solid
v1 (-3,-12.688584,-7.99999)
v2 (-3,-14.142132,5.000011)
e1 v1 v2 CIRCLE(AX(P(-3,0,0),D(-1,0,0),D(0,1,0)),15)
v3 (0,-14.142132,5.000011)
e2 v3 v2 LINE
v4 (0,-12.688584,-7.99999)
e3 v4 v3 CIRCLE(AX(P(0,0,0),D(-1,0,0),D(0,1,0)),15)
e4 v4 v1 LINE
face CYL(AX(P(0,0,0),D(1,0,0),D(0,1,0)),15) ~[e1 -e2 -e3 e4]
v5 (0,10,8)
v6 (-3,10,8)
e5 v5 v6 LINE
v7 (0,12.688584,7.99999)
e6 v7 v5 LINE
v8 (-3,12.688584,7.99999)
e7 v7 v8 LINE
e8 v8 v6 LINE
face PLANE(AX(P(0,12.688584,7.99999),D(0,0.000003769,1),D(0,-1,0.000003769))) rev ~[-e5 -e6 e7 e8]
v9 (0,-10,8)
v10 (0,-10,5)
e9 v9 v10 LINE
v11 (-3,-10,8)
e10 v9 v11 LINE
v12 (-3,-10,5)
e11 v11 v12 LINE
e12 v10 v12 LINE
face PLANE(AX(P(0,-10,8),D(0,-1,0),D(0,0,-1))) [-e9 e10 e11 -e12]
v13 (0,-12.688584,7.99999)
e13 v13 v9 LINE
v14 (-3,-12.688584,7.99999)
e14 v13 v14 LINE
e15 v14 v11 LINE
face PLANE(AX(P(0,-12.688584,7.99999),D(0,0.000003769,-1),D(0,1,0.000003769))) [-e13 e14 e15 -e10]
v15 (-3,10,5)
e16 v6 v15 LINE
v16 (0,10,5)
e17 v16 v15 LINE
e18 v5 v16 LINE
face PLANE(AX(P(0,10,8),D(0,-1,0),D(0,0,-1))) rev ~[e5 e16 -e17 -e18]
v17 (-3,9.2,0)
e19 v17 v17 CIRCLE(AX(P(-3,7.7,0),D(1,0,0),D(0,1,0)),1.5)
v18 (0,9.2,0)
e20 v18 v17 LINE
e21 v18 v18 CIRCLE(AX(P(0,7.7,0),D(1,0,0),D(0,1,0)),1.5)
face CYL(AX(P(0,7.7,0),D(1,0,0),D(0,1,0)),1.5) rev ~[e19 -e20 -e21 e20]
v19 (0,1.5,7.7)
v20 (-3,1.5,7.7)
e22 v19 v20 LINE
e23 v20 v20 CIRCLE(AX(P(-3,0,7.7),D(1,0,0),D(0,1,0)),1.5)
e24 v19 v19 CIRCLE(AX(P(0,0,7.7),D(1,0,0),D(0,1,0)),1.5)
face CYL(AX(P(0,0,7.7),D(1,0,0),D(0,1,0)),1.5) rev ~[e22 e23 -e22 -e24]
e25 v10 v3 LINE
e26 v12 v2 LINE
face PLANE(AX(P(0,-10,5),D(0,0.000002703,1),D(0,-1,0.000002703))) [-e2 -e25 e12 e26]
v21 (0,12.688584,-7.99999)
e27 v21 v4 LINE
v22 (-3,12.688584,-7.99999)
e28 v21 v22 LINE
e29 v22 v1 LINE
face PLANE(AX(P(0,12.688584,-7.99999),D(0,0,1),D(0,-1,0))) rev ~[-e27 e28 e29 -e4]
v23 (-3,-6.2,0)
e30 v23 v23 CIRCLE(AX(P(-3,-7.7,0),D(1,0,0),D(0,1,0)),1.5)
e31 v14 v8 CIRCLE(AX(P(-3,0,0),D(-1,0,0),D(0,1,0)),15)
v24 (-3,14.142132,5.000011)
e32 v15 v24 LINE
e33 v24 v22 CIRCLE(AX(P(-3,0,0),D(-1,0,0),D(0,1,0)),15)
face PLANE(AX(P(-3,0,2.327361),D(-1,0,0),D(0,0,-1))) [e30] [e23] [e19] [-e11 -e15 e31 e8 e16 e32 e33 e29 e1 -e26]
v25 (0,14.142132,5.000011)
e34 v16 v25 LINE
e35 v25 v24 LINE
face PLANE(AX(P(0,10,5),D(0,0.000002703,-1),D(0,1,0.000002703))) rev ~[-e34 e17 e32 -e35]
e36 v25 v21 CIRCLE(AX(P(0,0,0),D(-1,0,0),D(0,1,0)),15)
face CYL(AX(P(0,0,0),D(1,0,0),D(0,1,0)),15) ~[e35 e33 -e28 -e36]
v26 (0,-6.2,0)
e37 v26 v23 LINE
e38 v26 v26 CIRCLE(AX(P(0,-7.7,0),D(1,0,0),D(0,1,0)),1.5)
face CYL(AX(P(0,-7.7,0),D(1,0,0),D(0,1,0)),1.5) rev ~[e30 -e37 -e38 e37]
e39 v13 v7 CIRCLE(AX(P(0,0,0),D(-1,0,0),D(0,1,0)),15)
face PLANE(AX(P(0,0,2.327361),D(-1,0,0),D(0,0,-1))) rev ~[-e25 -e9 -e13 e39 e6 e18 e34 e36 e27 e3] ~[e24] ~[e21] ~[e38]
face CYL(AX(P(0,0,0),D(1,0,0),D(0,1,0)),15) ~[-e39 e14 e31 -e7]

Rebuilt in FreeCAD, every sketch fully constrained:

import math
import FreeCAD as App
import Part
import Sketcher

doc = App.newDocument("Part")
body = doc.addObject("PartDesign::Body", "Body")

# Sketch on YZ plane
sketch1 = body.newObject("Sketcher::SketchObject", "Sketch")
sketch1.AttachmentSupport = (doc.getObject("YZ_Plane"), [""])
sketch1.MapMode = "FlatFace"
sketch1.addGeometry([
    Part.LineSegment(App.Vector(10, 8, 0), App.Vector(12.6886, 8, 0)),  # 0
    Part.ArcOfCircle(Part.Circle(App.Vector(0, 0, 0), App.Vector(0, 0, 1), 15.000019), math.radians(32.230907), math.radians(147.769093)),  # 1
    Part.LineSegment(App.Vector(-12.6886, 8, 0), App.Vector(-10, 8, 0)),  # 2
    Part.LineSegment(App.Vector(-10, 8, 0), App.Vector(-10, 5, 0)),  # 3
    Part.LineSegment(App.Vector(-10, 5, 0), App.Vector(-14.1421, 5, 0)),  # 4
    Part.ArcOfCircle(Part.Circle(App.Vector(0, 0, 0), App.Vector(0, 0, 1), 14.999966), math.radians(160.528734), math.radians(212.230907)),  # 5
    Part.LineSegment(App.Vector(-12.6886, -8, 0), App.Vector(12.6886, -8, 0)),  # 6
    Part.ArcOfCircle(Part.Circle(App.Vector(0, 0, 0), App.Vector(0, 0, 1), 15.000019), math.radians(-32.230907), math.radians(19.471266)),  # 7
    Part.LineSegment(App.Vector(14.1421, 5, 0), App.Vector(10, 5, 0)),  # 8
    Part.LineSegment(App.Vector(10, 5, 0), App.Vector(10, 8, 0)),  # 9
    Part.Circle(App.Vector(-7.7, 0, 0), App.Vector(0, 0, 1), 1.5),  # 10
    Part.Circle(App.Vector(7.7, 0, 0), App.Vector(0, 0, 1), 1.5),  # 11
    Part.Circle(App.Vector(0, 7.7, 0), App.Vector(0, 0, 1), 1.5),  # 12
], False)
sketch1.addConstraint([
    Sketcher.Constraint("Coincident", 0, 2, 1, 1),
    Sketcher.Constraint("Coincident", 1, 2, 2, 1),
    Sketcher.Constraint("Coincident", 2, 2, 3, 1),
    Sketcher.Constraint("Coincident", 3, 2, 4, 1),
    Sketcher.Constraint("Coincident", 4, 2, 5, 1),
    Sketcher.Constraint("Coincident", 5, 2, 6, 1),
    Sketcher.Constraint("Coincident", 6, 2, 7, 1),
    Sketcher.Constraint("Coincident", 7, 2, 8, 1),
    Sketcher.Constraint("Coincident", 8, 2, 9, 1),
    Sketcher.Constraint("Coincident", 9, 2, 0, 1),
    Sketcher.Constraint("Horizontal", 0),
    Sketcher.Constraint("Horizontal", 2),
    Sketcher.Constraint("Vertical", 3),
    Sketcher.Constraint("Horizontal", 4),
    Sketcher.Constraint("Horizontal", 6),
    Sketcher.Constraint("Horizontal", 8),
    Sketcher.Constraint("Vertical", 9),
    Sketcher.Constraint("Coincident", 1, 3, -1, 1),
    Sketcher.Constraint("Coincident", 5, 3, -1, 1),
    Sketcher.Constraint("Coincident", 7, 3, -1, 1),
    Sketcher.Constraint("Equal", 1, 5),
    Sketcher.Constraint("Equal", 5, 7),
    Sketcher.Constraint("Equal", 10, 11),
    Sketcher.Constraint("Equal", 11, 12),
    Sketcher.Constraint("Symmetric", 10, 3, 11, 3, -1, 1),
    Sketcher.Constraint("Symmetric", 3, 2, 8, 2, -2),
    Sketcher.Constraint("PointOnObject", 10, 3, -1),
    Sketcher.Constraint("PointOnObject", 12, 3, -2),
    Sketcher.Constraint("Horizontal", 0, 2, 1, 2),
    Sketcher.Constraint("Vertical", 1, 2, 5, 2),
    Sketcher.Constraint("Diameter", 10, 3.0),
    Sketcher.Constraint("DistanceX", 2, 2, -1, 1, 10.0),
    Sketcher.Constraint("Radius", 1, 15.0),
    Sketcher.Constraint("DistanceY", 3, 2, 3, 1, 3.0),
    Sketcher.Constraint("DistanceY", -1, 1, 0, 2, 8.0),
    Sketcher.Constraint("DistanceX", 10, 3, -1, 1, 7.7),
    Sketcher.Constraint("DistanceY", -1, 1, 12, 3, 7.7),
])
pad1 = body.newObject("PartDesign::Pad", "Pad")
pad1.Profile = sketch1
pad1.Length = 3
pad1.Reversed = True

doc.recompute()
